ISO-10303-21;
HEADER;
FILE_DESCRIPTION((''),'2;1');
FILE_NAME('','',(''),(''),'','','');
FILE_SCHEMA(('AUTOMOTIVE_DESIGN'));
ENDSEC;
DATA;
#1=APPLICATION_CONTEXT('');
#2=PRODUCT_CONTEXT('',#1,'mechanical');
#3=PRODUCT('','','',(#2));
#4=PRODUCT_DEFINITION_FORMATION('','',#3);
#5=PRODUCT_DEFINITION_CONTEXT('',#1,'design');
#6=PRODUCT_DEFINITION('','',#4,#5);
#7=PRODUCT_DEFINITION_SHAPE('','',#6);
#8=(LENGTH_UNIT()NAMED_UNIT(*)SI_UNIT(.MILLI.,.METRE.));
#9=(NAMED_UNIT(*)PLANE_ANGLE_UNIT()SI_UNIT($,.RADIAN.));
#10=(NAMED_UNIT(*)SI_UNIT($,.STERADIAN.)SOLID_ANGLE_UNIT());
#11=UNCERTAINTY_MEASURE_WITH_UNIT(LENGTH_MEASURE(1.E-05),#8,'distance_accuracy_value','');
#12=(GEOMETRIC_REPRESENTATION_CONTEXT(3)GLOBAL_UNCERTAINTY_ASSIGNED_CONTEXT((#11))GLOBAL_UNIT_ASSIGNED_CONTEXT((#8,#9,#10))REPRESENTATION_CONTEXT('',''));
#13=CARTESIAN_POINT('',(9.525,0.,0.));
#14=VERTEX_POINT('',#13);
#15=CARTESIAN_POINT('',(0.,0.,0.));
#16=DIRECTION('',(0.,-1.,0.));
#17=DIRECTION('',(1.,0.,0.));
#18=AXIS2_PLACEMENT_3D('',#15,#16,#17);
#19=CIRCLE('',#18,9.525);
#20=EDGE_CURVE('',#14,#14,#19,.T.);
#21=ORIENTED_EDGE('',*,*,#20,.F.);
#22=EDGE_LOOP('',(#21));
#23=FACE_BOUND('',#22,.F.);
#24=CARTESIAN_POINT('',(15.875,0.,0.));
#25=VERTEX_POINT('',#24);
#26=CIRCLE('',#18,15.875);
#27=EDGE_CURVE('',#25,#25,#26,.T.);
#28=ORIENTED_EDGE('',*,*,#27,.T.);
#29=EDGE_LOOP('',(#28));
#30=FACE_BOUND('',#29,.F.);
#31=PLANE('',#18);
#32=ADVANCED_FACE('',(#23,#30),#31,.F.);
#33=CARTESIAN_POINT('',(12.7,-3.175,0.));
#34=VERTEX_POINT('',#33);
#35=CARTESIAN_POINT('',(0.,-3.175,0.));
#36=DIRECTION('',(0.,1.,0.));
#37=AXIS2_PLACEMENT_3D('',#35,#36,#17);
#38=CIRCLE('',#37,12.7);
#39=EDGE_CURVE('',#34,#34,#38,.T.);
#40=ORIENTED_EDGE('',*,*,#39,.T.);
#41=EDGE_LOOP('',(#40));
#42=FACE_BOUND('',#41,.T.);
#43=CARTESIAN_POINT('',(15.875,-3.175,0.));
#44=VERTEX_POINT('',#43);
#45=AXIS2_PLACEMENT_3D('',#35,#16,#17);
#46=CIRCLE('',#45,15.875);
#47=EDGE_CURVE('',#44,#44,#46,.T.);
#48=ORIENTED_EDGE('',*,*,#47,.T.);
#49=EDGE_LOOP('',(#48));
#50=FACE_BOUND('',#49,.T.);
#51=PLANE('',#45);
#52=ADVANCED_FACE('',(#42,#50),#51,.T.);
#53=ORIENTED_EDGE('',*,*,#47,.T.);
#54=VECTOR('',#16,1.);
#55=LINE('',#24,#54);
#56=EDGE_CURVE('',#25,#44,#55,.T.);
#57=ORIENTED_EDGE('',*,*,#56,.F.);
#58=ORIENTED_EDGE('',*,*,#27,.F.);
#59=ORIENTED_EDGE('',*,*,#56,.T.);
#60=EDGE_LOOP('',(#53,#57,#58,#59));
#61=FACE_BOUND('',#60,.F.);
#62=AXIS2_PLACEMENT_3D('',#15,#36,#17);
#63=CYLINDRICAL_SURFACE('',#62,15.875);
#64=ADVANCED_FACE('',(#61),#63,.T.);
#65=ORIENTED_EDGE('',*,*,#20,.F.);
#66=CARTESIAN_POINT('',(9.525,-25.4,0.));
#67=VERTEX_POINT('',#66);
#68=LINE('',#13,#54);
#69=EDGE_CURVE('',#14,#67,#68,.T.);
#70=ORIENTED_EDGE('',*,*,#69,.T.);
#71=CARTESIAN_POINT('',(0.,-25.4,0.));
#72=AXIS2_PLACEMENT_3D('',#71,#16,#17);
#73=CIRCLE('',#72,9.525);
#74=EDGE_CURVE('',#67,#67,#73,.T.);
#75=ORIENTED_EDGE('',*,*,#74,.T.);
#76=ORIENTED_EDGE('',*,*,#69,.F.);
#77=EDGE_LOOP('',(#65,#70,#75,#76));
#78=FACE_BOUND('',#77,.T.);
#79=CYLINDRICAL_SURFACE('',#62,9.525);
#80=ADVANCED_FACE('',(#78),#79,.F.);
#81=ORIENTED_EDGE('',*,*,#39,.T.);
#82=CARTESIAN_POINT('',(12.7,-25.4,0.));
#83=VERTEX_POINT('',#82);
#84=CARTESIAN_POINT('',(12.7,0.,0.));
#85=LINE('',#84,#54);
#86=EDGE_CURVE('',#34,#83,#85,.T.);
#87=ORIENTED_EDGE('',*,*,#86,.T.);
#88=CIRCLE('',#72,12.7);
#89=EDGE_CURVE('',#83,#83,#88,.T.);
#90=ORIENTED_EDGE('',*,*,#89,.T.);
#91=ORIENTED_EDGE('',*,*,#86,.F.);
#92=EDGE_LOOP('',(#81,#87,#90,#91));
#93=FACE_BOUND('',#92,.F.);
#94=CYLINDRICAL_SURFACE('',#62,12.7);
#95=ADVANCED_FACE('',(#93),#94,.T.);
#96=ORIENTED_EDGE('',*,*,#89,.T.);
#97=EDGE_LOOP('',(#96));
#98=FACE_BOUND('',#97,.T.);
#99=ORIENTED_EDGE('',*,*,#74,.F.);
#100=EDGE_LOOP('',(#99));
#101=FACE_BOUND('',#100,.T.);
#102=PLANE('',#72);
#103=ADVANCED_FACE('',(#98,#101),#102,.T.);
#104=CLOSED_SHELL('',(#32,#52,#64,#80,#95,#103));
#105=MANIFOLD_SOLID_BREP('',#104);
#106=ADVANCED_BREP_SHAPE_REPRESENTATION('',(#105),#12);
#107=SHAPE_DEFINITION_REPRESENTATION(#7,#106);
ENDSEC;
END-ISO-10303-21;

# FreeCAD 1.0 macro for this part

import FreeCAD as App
import Part
import Sketcher
from FreeCAD import Vector
Q = App.Units.Quantity

doc = App.newDocument("Part")
body = doc.addObject("PartDesign::Body", "Body")

# Sketch on XZ plane
sketch1 = doc.addObject("Sketcher::SketchObject", "Sketch")
body.addObject(sketch1)
sketch1.AttachmentSupport = (doc.XZ_Plane, [""])
sketch1.MapMode = "FlatFace"
sketch1.addGeometry(Part.Circle(Vector(0, 0, 0), Vector(0, 0, 1), 16), False)
sketch1.addConstraint(Sketcher.Constraint("Coincident", 0, 3, -1, 1))
sketch1.addConstraint(Sketcher.Constraint("Diameter", 0, Q("1.25 in")))
pad1 = doc.addObject("PartDesign::Pad", "Pad")
body.addObject(pad1)
pad1.Profile = sketch1
pad1.Length = Q("0.125 in")

# Sketch on XZ plane
sketch2 = doc.addObject("Sketcher::SketchObject", "Sketch001")
body.addObject(sketch2)
sketch2.AttachmentSupport = (doc.XZ_Plane, [""])
sketch2.MapMode = "FlatFace"
sketch2.addGeometry(Part.Circle(Vector(0, 0, 0), Vector(0, 0, 1), 13), False)
sketch2.addConstraint(Sketcher.Constraint("Coincident", 0, 3, -1, 1))
sketch2.addConstraint(Sketcher.Constraint("Diameter", 0, Q("1 in")))
pad2 = doc.addObject("PartDesign::Pad", "Pad001")
body.addObject(pad2)
pad2.Profile = sketch2
pad2.Length = Q("1 in")

# Sketch on XZ plane
sketch3 = doc.addObject("Sketcher::SketchObject", "Sketch002")
body.addObject(sketch3)
sketch3.AttachmentSupport = (doc.XZ_Plane, [""])
sketch3.MapMode = "FlatFace"
sketch3.addGeometry(Part.Circle(Vector(0, 0, 0), Vector(0, 0, 1), 10), False)
sketch3.addConstraint(Sketcher.Constraint("Coincident", 0, 3, -1, 1))
sketch3.addConstraint(Sketcher.Constraint("Diameter", 0, Q("0.75 in")))
pocket1 = doc.addObject("PartDesign::Pocket", "Pocket")
body.addObject(pocket1)
pocket1.Profile = sketch3
pocket1.Length = Q("1 in")
pocket1.Reversed = True

doc.recompute()
